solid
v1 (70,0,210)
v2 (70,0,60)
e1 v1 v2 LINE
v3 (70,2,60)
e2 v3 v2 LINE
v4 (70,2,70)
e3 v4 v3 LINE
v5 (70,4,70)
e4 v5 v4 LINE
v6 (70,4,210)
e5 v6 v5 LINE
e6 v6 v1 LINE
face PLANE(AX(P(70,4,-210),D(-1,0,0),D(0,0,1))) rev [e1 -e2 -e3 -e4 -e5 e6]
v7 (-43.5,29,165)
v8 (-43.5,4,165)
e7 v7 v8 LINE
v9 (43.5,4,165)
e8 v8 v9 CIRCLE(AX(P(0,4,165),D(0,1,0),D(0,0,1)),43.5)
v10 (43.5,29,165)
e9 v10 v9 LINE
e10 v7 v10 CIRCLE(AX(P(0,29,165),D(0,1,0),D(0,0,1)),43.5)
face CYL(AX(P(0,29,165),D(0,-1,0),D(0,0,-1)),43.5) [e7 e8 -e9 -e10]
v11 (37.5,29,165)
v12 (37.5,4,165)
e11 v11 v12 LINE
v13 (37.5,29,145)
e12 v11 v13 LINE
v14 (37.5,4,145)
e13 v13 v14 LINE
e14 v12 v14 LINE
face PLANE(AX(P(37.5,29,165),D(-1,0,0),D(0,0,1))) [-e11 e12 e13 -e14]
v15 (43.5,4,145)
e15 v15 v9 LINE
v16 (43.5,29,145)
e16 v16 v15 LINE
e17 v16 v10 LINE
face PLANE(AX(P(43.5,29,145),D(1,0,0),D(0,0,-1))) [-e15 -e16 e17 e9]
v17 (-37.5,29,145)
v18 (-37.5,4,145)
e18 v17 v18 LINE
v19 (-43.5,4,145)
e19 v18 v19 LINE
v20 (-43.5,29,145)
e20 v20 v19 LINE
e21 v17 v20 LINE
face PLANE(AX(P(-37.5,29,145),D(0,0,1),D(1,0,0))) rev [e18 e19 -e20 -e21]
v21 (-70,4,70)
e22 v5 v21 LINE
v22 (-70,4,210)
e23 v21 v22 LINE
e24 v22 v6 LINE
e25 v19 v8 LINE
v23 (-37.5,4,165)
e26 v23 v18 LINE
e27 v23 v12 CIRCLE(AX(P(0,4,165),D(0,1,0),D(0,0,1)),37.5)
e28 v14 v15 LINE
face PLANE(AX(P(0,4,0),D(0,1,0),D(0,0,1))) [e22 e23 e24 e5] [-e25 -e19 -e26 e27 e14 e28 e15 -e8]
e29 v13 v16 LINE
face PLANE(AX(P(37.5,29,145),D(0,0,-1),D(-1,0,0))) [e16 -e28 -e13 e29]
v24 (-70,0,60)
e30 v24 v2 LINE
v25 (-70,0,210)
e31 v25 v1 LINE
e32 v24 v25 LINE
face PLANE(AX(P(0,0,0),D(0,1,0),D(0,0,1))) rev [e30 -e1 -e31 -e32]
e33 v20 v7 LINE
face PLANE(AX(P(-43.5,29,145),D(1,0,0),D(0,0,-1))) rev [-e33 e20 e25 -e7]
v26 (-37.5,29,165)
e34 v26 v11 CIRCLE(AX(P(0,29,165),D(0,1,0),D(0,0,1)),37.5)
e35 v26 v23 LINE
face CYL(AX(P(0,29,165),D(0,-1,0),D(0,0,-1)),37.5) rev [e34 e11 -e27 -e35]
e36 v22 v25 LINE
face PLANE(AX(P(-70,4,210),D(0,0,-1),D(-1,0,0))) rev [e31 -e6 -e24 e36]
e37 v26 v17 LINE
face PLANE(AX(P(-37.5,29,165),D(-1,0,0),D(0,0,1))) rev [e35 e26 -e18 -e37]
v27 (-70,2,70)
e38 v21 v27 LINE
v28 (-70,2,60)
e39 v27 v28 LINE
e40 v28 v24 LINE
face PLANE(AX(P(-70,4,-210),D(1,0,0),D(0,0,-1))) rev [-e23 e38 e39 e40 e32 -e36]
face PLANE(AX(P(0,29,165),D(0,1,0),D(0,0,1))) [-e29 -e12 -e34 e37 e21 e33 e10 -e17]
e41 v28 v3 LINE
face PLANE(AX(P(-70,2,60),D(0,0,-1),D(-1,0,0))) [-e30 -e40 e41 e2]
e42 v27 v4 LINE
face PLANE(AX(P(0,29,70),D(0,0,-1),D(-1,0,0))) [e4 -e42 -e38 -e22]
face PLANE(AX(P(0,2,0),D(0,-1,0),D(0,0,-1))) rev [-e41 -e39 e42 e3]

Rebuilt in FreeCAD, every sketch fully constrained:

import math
import FreeCAD as App
import Part
import Sketcher

V = App.Vector
Q = App.Units.Quantity

doc = App.newDocument("Part")
body = doc.addObject("PartDesign::Body", "Body")

sketch1 = doc.addObject("Sketcher::SketchObject", "Sketch")
body.addObject(sketch1)
sketch1.AttachmentSupport = (doc.XZ_Plane, [""])
sketch1.MapMode = "FlatFace"
sketch1.addGeometry([
    Part.LineSegment(V(-70, -210, 0), V(-70, 210, 0)),
    Part.LineSegment(V(-70, 210, 0), V(70, 210, 0)),
    Part.LineSegment(V(70, 210, 0), V(70, -210, 0)),
    Part.LineSegment(V(70, -210, 0), V(-70, -210, 0)),
], False)
sketch1.addConstraint([
    Sketcher.Constraint("Coincident", 0, 2, 1, 1),
    Sketcher.Constraint("Coincident", 1, 2, 2, 1),
    Sketcher.Constraint("Coincident", 2, 2, 3, 1),
    Sketcher.Constraint("Coincident", 3, 2, 0, 1),
    Sketcher.Constraint("Vertical", 0),
    Sketcher.Constraint("Horizontal", 1),
    Sketcher.Constraint("Vertical", 2),
    Sketcher.Constraint("Horizontal", 3),
    Sketcher.Constraint("Symmetric", 0, 2, 2, 2, -1, 1),
    Sketcher.Constraint("DistanceX", 1, 1, 1, 2, Q("140 mm")),
    Sketcher.Constraint("DistanceY", 0, 1, 0, 2, Q("420 mm")),
])
pad1 = doc.addObject("PartDesign::Pad", "Pad")
body.addObject(pad1)
pad1.Profile = sketch1
pad1.Length = 4
pad1.Reversed = True

sketch2 = doc.addObject("Sketcher::SketchObject", "Sketch001")
body.addObject(sketch2)
sketch2.AttachmentSupport = (doc.XZ_Plane, [""])
sketch2.MapMode = "FlatFace"
sketch2.AttachmentOffset = App.Placement(V(0, 0, -4), App.Rotation())
sketch2.addGeometry([
    Part.LineSegment(V(-38, 165, 0), V(-38, 145, 0)),
    Part.LineSegment(V(-38, 145, 0), V(-44, 145, 0)),
    Part.LineSegment(V(-44, 145, 0), V(-44, 165, 0)),
    Part.ArcOfCircle(Part.Circle(V(0, 165, 0), V(0, 0, 1), 44), math.radians(0), math.radians(180)),
    Part.LineSegment(V(44, 165, 0), V(44, 145, 0)),
    Part.LineSegment(V(44, 145, 0), V(38, 145, 0)),
    Part.LineSegment(V(38, 145, 0), V(38, 165, 0)),
    Part.ArcOfCircle(Part.Circle(V(0, 165, 0), V(0, 0, 1), 38), math.radians(0), math.radians(180)),
], False)
sketch2.addConstraint([
    Sketcher.Constraint("Coincident", 0, 2, 1, 1),
    Sketcher.Constraint("Coincident", 1, 2, 2, 1),
    Sketcher.Constraint("Tangent", 2, 2, 3, 2),
    Sketcher.Constraint("Tangent", 3, 1, 4, 1),
    Sketcher.Constraint("Coincident", 4, 2, 5, 1),
    Sketcher.Constraint("Coincident", 5, 2, 6, 1),
    Sketcher.Constraint("Tangent", 6, 2, 7, 1),
    Sketcher.Constraint("Tangent", 7, 2, 0, 1),
    Sketcher.Constraint("Vertical", 0),
    Sketcher.Constraint("Horizontal", 1),
    Sketcher.Constraint("Vertical", 2),
    Sketcher.Constraint("Vertical", 4),
    Sketcher.Constraint("Horizontal", 5),
    Sketcher.Constraint("Vertical", 6),
    Sketcher.Constraint("Coincident", 7, 3, 3, 3),
    Sketcher.Constraint("Symmetric", 1, 2, 4, 2, -2),
    Sketcher.Constraint("Radius", 3, Q("43.5 mm")),
    Sketcher.Constraint("Radius", 7, Q("37.5 mm")),
    Sketcher.Constraint("DistanceY", 0, 2, 0, 1, Q("20 mm")),
    Sketcher.Constraint("DistanceY", -1, 1, 3, 3, Q("165 mm")),
])
pad2 = doc.addObject("PartDesign::Pad", "Pad001")
body.addObject(pad2)
pad2.Profile = sketch2
pad2.Length = 25
pad2.Reversed = True

sketch3 = doc.addObject("Sketcher::SketchObject", "Sketch002")
body.addObject(sketch3)
sketch3.AttachmentSupport = (doc.XZ_Plane, [""])
sketch3.MapMode = "FlatFace"
sketch3.AttachmentOffset = App.Placement(V(0, 0, -4), App.Rotation())
sketch3.addGeometry([
    Part.LineSegment(V(-65, -180, 0), V(-65, -100, 0)),
    Part.LineSegment(V(-65, -100, 0), V(-55, -100, 0)),
    Part.LineSegment(V(-55, -100, 0), V(-55, -180, 0)),
    Part.LineSegment(V(-55, -180, 0), V(-65, -180, 0)),
    Part.LineSegment(V(55, -180, 0), V(55, -100, 0)),
    Part.LineSegment(V(55, -100, 0), V(65, -100, 0)),
    Part.LineSegment(V(65, -100, 0), V(65, -180, 0)),
    Part.LineSegment(V(65, -180, 0), V(55, -180, 0)),
], False)
sketch3.addConstraint([
    Sketcher.Constraint("Coincident", 0, 2, 1, 1),
    Sketcher.Constraint("Coincident", 1, 2, 2, 1),
    Sketcher.Constraint("Coincident", 2, 2, 3, 1),
    Sketcher.Constraint("Coincident", 3, 2, 0, 1),
    Sketcher.Constraint("Coincident", 4, 2, 5, 1),
    Sketcher.Constraint("Coincident", 5, 2, 6, 1),
    Sketcher.Constraint("Coincident", 6, 2, 7, 1),
    Sketcher.Constraint("Coincident", 7, 2, 4, 1),
    Sketcher.Constraint("Vertical", 0),
    Sketcher.Constraint("Horizontal", 1),
    Sketcher.Constraint("Vertical", 2),
    Sketcher.Constraint("Horizontal", 3),
    Sketcher.Constraint("Vertical", 4),
    Sketcher.Constraint("Horizontal", 5),
    Sketcher.Constraint("Vertical", 6),
    Sketcher.Constraint("Horizontal", 7),
    Sketcher.Constraint("Symmetric", 1, 2, 4, 2, -2),
    Sketcher.Constraint("Symmetric", 3, 2, 6, 2, -2),
    Sketcher.Constraint("DistanceX", 0, 2, -1, 1, Q("65 mm")),
    Sketcher.Constraint("DistanceY", 2, 2, -1, 1, Q("180 mm")),
    Sketcher.Constraint("DistanceX", 1, 1, 1, 2, Q("10.25 mm")),
    Sketcher.Constraint("DistanceY", 0, 1, 0, 2, Q("80.25 mm")),
])
pocket1 = doc.addObject("PartDesign::Pocket", "Pocket")
body.addObject(pocket1)
pocket1.Profile = sketch3
pocket1.Length = 25.4
pocket1.Reversed = True

sketch4 = doc.addObject("Sketcher::SketchObject", "Sketch003")
body.addObject(sketch4)
sketch4.AttachmentSupport = (doc.XZ_Plane, [""])
sketch4.MapMode = "FlatFace"
sketch4.AttachmentOffset = App.Placement(V(0, 0, -4), App.Rotation())
sketch4.addGeometry([
    Part.LineSegment(V(-65, -205, 0), V(-65, -195, 0)),
    Part.LineSegment(V(-65, -195, 0), V(65, -195, 0)),
    Part.LineSegment(V(65, -195, 0), V(65, -205, 0)),
    Part.LineSegment(V(65, -205, 0), V(-65, -205, 0)),
], False)
sketch4.addConstraint([
    Sketcher.Constraint("Coincident", 0, 2, 1, 1),
    Sketcher.Constraint("Coincident", 1, 2, 2, 1),
    Sketcher.Constraint("Coincident", 2, 2, 3, 1),
    Sketcher.Constraint("Coincident", 3, 2, 0, 1),
    Sketcher.Constraint("Vertical", 0),
    Sketcher.Constraint("Horizontal", 1),
    Sketcher.Constraint("Vertical", 2),
    Sketcher.Constraint("Horizontal", 3),
    Sketcher.Constraint("DistanceX", 1, 1, 1, 2, Q("130 mm")),
    Sketcher.Constraint("DistanceY", 0, 1, 0, 2, Q("10 mm")),
    Sketcher.Constraint("DistanceX", 0, 2, -1, 1, Q("65 mm")),
    Sketcher.Constraint("DistanceY", 0, 2, -1, 1, Q("195 mm")),
])
pocket2 = doc.addObject("PartDesign::Pocket", "Pocket001")
body.addObject(pocket2)
pocket2.Profile = sketch4
pocket2.Length = 2.45
pocket2.Reversed = True

sketch5 = doc.addObject("Sketcher::SketchObject", "Sketch004")
body.addObject(sketch5)
sketch5.AttachmentSupport = (doc.XZ_Plane, [""])
sketch5.MapMode = "FlatFace"
sketch5.addGeometry([
    Part.LineSegment(V(-70, -210, 0), V(70, -210, 0)),
    Part.LineSegment(V(70, -210, 0), V(70, 70, 0)),
    Part.LineSegment(V(70, 70, 0), V(-70, 70, 0)),
    Part.LineSegment(V(-70, 70, 0), V(-70, -210, 0)),
    Part.LineSegment(V(-55, -180, 0), V(-65, -180, 0)),
    Part.LineSegment(V(-65, -180, 0), V(-65, -100, 0)),
    Part.LineSegment(V(-65, -100, 0), V(-55, -100, 0)),
    Part.LineSegment(V(-55, -100, 0), V(-55, -180, 0)),
    Part.LineSegment(V(65, -180, 0), V(55, -180, 0)),
    Part.LineSegment(V(55, -180, 0), V(55, -100, 0)),
    Part.LineSegment(V(55, -100, 0), V(65, -100, 0)),
    Part.LineSegment(V(65, -100, 0), V(65, -180, 0)),
], False)
sketch5.addConstraint([
    Sketcher.Constraint("Coincident", 0, 2, 1, 1),
    Sketcher.Constraint("Coincident", 1, 2, 2, 1),
    Sketcher.Constraint("Coincident", 2, 2, 3, 1),
    Sketcher.Constraint("Coincident", 3, 2, 0, 1),
    Sketcher.Constraint("Coincident", 4, 2, 5, 1),
    Sketcher.Constraint("Coincident", 5, 2, 6, 1),
    Sketcher.Constraint("Coincident", 6, 2, 7, 1),
    Sketcher.Constraint("Coincident", 7, 2, 4, 1),
    Sketcher.Constraint("Coincident", 8, 2, 9, 1),
    Sketcher.Constraint("Coincident", 9, 2, 10, 1),
    Sketcher.Constraint("Coincident", 10, 2, 11, 1),
    Sketcher.Constraint("Coincident", 11, 2, 8, 1),
    Sketcher.Constraint("Horizontal", 0),
    Sketcher.Constraint("Vertical", 1),
    Sketcher.Constraint("Horizontal", 2),
    Sketcher.Constraint("Vertical", 3),
    Sketcher.Constraint("Horizontal", 4),
    Sketcher.Constraint("Vertical", 5),
    Sketcher.Constraint("Horizontal", 6),
    Sketcher.Constraint("Vertical", 7),
    Sketcher.Constraint("Horizontal", 8),
    Sketcher.Constraint("Vertical", 9),
    Sketcher.Constraint("Horizontal", 10),
    Sketcher.Constraint("Vertical", 11),
    Sketcher.Constraint("Symmetric", 7, 2, 8, 2, -2),
    Sketcher.Constraint("Symmetric", 5, 2, 10, 2, -2),
    Sketcher.Constraint("DistanceX", 0, 1, 0, 2, Q("140 mm")),
    Sketcher.Constraint("DistanceY", 1, 1, 1, 2, Q("280 mm")),
    Sketcher.Constraint("DistanceX", -1, 1, 0, 2, Q("70 mm")),
    Sketcher.Constraint("DistanceY", 0, 2, -1, 1, Q("210 mm")),
    Sketcher.Constraint("DistanceX", 4, 2, -1, 1, Q("65 mm")),
    Sketcher.Constraint("DistanceY", 4, 2, -1, 1, Q("180 mm")),
    Sketcher.Constraint("DistanceX", 4, 2, 4, 1, Q("10.25 mm")),
    Sketcher.Constraint("DistanceY", 5, 1, 5, 2, Q("80.25 mm")),
])
pocket3 = doc.addObject("PartDesign::Pocket", "Pocket002")
body.addObject(pocket3)
pocket3.Profile = sketch5
pocket3.Type = "ThroughAll"
pocket3.Midplane = True

sketch6 = doc.addObject("Sketcher::SketchObject", "Sketch005")
body.addObject(sketch6)
sketch6.AttachmentSupport = (doc.XZ_Plane, [""])
sketch6.MapMode = "FlatFace"
sketch6.addGeometry([
    Part.LineSegment(V(-70, 70, 0), V(-70, 60, 0)),
    Part.LineSegment(V(-70, 60, 0), V(70, 60, 0)),
    Part.LineSegment(V(70, 60, 0), V(70, 70, 0)),
    Part.LineSegment(V(70, 70, 0), V(-70, 70, 0)),
], False)
sketch6.addConstraint([
    Sketcher.Constraint("Coincident", 0, 2, 1, 1),
    Sketcher.Constraint("Coincident", 1, 2, 2, 1),
    Sketcher.Constraint("Coincident", 2, 2, 3, 1),
    Sketcher.Constraint("Coincident", 3, 2, 0, 1),
    Sketcher.Constraint("Vertical", 0),
    Sketcher.Constraint("Horizontal", 1),
    Sketcher.Constraint("Vertical", 2),
    Sketcher.Constraint("Horizontal", 3),
    Sketcher.Constraint("DistanceX", 1, 1, 1, 2, Q("140 mm")),
    Sketcher.Constraint("DistanceY", 0, 2, 0, 1, Q("10 mm")),
    Sketcher.Constraint("DistanceX", 0, 2, -1, 1, Q("70 mm")),
    Sketcher.Constraint("DistanceY", -1, 1, 0, 2, Q("60 mm")),
])
pad3 = doc.addObject("PartDesign::Pad", "Pad002")
body.addObject(pad3)
pad3.Profile = sketch6
pad3.Length = 2
pad3.Reversed = True

doc.recompute()
